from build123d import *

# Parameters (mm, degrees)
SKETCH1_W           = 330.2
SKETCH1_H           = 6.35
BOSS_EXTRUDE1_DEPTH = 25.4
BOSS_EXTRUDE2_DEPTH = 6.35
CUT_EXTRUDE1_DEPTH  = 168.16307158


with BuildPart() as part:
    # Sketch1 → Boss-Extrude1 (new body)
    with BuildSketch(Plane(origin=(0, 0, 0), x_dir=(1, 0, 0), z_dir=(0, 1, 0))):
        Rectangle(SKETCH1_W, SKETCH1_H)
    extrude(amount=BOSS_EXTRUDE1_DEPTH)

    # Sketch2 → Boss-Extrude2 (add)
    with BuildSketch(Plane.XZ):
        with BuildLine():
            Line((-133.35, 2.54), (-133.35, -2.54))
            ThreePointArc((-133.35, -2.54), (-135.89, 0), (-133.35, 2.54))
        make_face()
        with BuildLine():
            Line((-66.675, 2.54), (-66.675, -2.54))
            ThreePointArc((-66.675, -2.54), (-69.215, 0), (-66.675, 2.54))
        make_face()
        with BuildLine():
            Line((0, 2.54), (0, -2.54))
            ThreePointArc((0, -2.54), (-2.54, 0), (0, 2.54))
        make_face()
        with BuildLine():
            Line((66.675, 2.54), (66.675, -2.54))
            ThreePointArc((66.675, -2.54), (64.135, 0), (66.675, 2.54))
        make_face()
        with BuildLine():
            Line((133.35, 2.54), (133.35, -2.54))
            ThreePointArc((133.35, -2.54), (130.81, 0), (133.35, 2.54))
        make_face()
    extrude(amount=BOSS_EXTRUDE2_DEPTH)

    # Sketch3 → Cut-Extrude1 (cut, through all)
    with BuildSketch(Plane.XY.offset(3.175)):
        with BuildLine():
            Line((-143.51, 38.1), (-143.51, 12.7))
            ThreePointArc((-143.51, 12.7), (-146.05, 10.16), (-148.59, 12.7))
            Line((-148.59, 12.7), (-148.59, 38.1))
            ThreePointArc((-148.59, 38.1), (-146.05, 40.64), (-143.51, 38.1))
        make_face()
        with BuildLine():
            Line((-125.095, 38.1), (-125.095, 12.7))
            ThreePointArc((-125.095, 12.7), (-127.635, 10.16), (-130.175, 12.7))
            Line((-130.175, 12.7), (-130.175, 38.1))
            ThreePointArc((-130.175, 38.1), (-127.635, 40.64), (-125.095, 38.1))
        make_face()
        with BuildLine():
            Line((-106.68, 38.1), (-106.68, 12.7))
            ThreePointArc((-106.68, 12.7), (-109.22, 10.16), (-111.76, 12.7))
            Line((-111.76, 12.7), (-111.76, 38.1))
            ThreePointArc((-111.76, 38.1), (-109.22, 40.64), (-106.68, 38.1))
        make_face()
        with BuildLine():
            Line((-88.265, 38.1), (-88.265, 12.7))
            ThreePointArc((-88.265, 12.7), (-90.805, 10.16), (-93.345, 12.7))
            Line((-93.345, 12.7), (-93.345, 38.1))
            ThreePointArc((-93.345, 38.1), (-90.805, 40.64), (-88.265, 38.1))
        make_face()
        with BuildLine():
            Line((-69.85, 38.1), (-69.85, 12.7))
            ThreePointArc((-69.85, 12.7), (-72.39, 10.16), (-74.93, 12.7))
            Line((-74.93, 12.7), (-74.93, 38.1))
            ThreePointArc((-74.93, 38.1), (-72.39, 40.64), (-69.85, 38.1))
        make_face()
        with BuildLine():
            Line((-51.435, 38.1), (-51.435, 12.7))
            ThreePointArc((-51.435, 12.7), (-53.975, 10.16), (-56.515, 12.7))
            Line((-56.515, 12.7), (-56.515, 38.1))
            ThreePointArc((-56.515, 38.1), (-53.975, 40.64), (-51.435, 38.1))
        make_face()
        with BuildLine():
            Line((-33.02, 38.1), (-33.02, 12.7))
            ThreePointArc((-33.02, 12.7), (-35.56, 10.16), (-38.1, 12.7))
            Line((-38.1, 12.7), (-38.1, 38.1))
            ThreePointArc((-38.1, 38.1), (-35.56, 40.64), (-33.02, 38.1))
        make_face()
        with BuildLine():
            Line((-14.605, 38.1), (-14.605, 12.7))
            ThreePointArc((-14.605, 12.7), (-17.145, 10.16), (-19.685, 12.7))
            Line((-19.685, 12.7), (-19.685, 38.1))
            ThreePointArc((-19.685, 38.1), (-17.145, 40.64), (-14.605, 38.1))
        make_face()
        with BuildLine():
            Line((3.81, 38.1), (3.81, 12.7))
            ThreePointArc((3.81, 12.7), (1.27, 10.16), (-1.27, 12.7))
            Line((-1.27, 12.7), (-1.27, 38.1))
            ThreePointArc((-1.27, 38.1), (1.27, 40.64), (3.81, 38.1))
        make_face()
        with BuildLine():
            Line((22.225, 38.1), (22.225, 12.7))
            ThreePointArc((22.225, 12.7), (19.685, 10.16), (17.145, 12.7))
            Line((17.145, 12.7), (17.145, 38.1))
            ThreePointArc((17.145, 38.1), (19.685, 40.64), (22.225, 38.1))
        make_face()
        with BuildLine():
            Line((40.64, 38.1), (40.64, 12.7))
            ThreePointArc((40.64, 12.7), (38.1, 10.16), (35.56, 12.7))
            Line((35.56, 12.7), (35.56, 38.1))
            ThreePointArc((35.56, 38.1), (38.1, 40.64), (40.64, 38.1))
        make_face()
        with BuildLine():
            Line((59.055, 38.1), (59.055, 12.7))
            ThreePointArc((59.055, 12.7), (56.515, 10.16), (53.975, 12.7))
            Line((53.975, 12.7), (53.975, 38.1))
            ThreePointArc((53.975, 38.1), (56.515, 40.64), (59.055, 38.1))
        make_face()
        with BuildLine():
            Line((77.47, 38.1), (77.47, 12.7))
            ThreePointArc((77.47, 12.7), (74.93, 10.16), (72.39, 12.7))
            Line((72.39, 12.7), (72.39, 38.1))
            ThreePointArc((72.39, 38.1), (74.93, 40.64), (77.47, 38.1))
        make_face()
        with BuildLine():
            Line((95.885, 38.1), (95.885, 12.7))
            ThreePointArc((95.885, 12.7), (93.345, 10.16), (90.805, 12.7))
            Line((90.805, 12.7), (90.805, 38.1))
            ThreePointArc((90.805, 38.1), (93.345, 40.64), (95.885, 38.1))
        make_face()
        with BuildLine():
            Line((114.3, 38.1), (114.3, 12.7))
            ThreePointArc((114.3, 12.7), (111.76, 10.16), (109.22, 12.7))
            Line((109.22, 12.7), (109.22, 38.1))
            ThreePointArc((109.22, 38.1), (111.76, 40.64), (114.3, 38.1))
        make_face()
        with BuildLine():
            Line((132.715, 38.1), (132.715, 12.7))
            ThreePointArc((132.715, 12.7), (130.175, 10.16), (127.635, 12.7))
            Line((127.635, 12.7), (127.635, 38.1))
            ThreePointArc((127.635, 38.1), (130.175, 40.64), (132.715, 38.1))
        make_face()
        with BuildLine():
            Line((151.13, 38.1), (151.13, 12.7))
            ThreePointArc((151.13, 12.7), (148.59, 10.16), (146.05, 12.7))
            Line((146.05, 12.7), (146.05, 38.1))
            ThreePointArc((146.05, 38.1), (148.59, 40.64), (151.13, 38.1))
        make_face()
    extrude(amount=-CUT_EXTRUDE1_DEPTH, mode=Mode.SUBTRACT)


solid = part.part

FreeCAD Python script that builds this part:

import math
import FreeCAD as App
import Part
import Sketcher

V = App.Vector
Q = App.Units.Quantity

doc = App.newDocument("Part")
params = doc.addObject("Spreadsheet::Sheet", "Params")
for row, (alias, value) in enumerate([
    ("sketch1_width", "13 in"),
    ("sketch1_height", "0.25 in"),
    ("pad1_length", "1 in"),
    ("sketch2_radius", "0.1 in"),
    ("pad2_length", "0.25 in"),
    ("sketch3_radius", "0.1 in"),
    ("sketch3_height", "1 in"),
], start=1):
    params.set(f"A{row}", alias)
    params.set(f"B{row}", "=" + value)
    params.setAlias(f"B{row}", alias)

body = doc.addObject("PartDesign::Body", "Body")

sketch1 = body.newObject("Sketcher::SketchObject", "Sketch")
sketch1.AttachmentSupport = (doc.getObject("XZ_Plane"), [""])
sketch1.MapMode = "FlatFace"
sketch1.addGeometry([
    Part.LineSegment(V(-165, -3, 0), V(-165, 3, 0)),
    Part.LineSegment(V(-165, 3, 0), V(165, 3, 0)),
    Part.LineSegment(V(165, 3, 0), V(165, -3, 0)),
    Part.LineSegment(V(165, -3, 0), V(-165, -3, 0)),
], False)
sketch1.addConstraint([
    Sketcher.Constraint("Coincident", 0, 2, 1, 1),
    Sketcher.Constraint("Coincident", 1, 2, 2, 1),
    Sketcher.Constraint("Coincident", 2, 2, 3, 1),
    Sketcher.Constraint("Coincident", 3, 2, 0, 1),
    Sketcher.Constraint("Vertical", 0),
    Sketcher.Constraint("Horizontal", 1),
    Sketcher.Constraint("Vertical", 2),
    Sketcher.Constraint("Horizontal", 3),
    Sketcher.Constraint("Symmetric", 0, 2, 2, 2, -1, 1),
    Sketcher.Constraint("DistanceX", 1, 1, 1, 2, Q("13 in")),
    Sketcher.Constraint("DistanceY", 0, 1, 0, 2, Q("0.25 in")),
])
sketch1.setExpression("Constraints[9]", "Params.sketch1_width")
sketch1.setExpression("Constraints[10]", "Params.sketch1_height")
pad1 = body.newObject("PartDesign::Pad", "Pad")
pad1.Profile = sketch1
pad1.setExpression("Length", "Params.pad1_length")
pad1.Reversed = True

sketch2 = body.newObject("Sketcher::SketchObject", "Sketch001")
sketch2.AttachmentSupport = (doc.getObject("XZ_Plane"), [""])
sketch2.MapMode = "FlatFace"
sketch2.addGeometry([
    Part.LineSegment(V(-133.3, -2.5, 0), V(-133.3, 2.5, 0)),
    Part.ArcOfCircle(Part.Circle(V(-133.3, 0, 0), V(0, 0, 1), 2.5), math.radians(90), math.radians(270)),
    Part.LineSegment(V(-66.7, -2.5, 0), V(-66.7, 2.5, 0)),
    Part.ArcOfCircle(Part.Circle(V(-66.7, 0, 0), V(0, 0, 1), 2.5), math.radians(90), math.radians(270)),
    Part.LineSegment(V(0, -2.5, 0), V(0, 2.5, 0)),
    Part.ArcOfCircle(Part.Circle(V(0, 0, 0), V(0, 0, 1), 2.5), math.radians(90), math.radians(270)),
    Part.LineSegment(V(66.7, -2.5, 0), V(66.7, 2.5, 0)),
    Part.ArcOfCircle(Part.Circle(V(66.7, 0, 0), V(0, 0, 1), 2.5), math.radians(90), math.radians(270)),
    Part.LineSegment(V(133.3, -2.5, 0), V(133.3, 2.5, 0)),
    Part.ArcOfCircle(Part.Circle(V(133.3, 0, 0), V(0, 0, 1), 2.5), math.radians(90), math.radians(270)),
], False)
sketch2.addConstraint([
    Sketcher.Constraint("Coincident", 0, 1, 1, 2),
    Sketcher.Constraint("Coincident", 1, 1, 0, 2),
    Sketcher.Constraint("Coincident", 2, 1, 3, 2),
    Sketcher.Constraint("Coincident", 3, 1, 2, 2),
    Sketcher.Constraint("Coincident", 4, 1, 5, 2),
    Sketcher.Constraint("Coincident", 5, 1, 4, 2),
    Sketcher.Constraint("Coincident", 6, 1, 7, 2),
    Sketcher.Constraint("Coincident", 7, 1, 6, 2),
    Sketcher.Constraint("Coincident", 8, 1, 9, 2),
    Sketcher.Constraint("Coincident", 9, 1, 8, 2),
    Sketcher.Constraint("Vertical", 0),
    Sketcher.Constraint("Vertical", 2),
    Sketcher.Constraint("Vertical", 4),
    Sketcher.Constraint("Vertical", 6),
    Sketcher.Constraint("Vertical", 8),
    Sketcher.Constraint("Coincident", 5, 3, -1, 1),
    Sketcher.Constraint("Equal", 1, 3),
    Sketcher.Constraint("Equal", 3, 5),
    Sketcher.Constraint("Equal", 5, 7),
    Sketcher.Constraint("Equal", 7, 9),
    Sketcher.Constraint("Symmetric", 3, 3, 7, 3, -1, 1),
    Sketcher.Constraint("Symmetric", 1, 3, 9, 3, -1, 1),
    Sketcher.Constraint("Symmetric", 2, 1, 6, 1, -2),
    Sketcher.Constraint("Symmetric", 0, 1, 8, 1, -2),
    Sketcher.Constraint("PointOnObject", 4, 1, -2),
    Sketcher.Constraint("Vertical", 1, 3, 0, 1),
    Sketcher.Constraint("Vertical", 3, 3, 2, 1),
    Sketcher.Constraint("Radius", 1, Q("0.1 in")),
    Sketcher.Constraint("DistanceX", 1, 3, 9, 3, Q("10.5 in")),
    Sketcher.Constraint("DistanceX", 3, 3, 7, 3, Q("5.25 in")),
])
sketch2.setExpression("Constraints[27]", "Params.sketch2_radius")
pad2 = body.newObject("PartDesign::Pad", "Pad001")
pad2.Profile = sketch2
pad2.setExpression("Length", "Params.pad2_length")

sketch3 = body.newObject("Sketcher::SketchObject", "Sketch002")
sketch3.AttachmentSupport = (doc.getObject("XY_Plane"), [""])
sketch3.MapMode = "FlatFace"
sketch3.AttachmentOffset = App.Placement(V(0, 0, 0.125 * 25.4), App.Rotation())
sketch3.addGeometry([
    Part.LineSegment(V(-143.5, 12.7, 0), V(-143.5, 38.1, 0)),
    Part.ArcOfCircle(Part.Circle(V(-146.1, 38.1, 0), V(0, 0, 1), 2.5), math.radians(0), math.radians(180)),
    Part.LineSegment(V(-148.6, 38.1, 0), V(-148.6, 12.7, 0)),
    Part.ArcOfCircle(Part.Circle(V(-146.1, 12.7, 0), V(0, 0, 1), 2.5), math.radians(180), math.radians(360)),
    Part.LineSegment(V(-125.1, 12.7, 0), V(-125.1, 38.1, 0)),
    Part.ArcOfCircle(Part.Circle(V(-127.6, 38.1, 0), V(0, 0, 1), 2.5), math.radians(0), math.radians(180)),
    Part.LineSegment(V(-130.2, 38.1, 0), V(-130.2, 12.7, 0)),
    Part.ArcOfCircle(Part.Circle(V(-127.6, 12.7, 0), V(0, 0, 1), 2.5), math.radians(180), math.radians(360)),
    Part.LineSegment(V(-106.7, 12.7, 0), V(-106.7, 38.1, 0)),
    Part.ArcOfCircle(Part.Circle(V(-109.2, 38.1, 0), V(0, 0, 1), 2.5), math.radians(0), math.radians(180)),
    Part.LineSegment(V(-111.8, 38.1, 0), V(-111.8, 12.7, 0)),
    Part.ArcOfCircle(Part.Circle(V(-109.2, 12.7, 0), V(0, 0, 1), 2.5), math.radians(180), math.radians(360)),
    Part.LineSegment(V(-88.3, 12.7, 0), V(-88.3, 38.1, 0)),
    Part.ArcOfCircle(Part.Circle(V(-90.8, 38.1, 0), V(0, 0, 1), 2.5), math.radians(0), math.radians(180)),
    Part.LineSegment(V(-93.3, 38.1, 0), V(-93.3, 12.7, 0)),
    Part.ArcOfCircle(Part.Circle(V(-90.8, 12.7, 0), V(0, 0, 1), 2.5), math.radians(180), math.radians(360)),
    Part.LineSegment(V(-69.8, 12.7, 0), V(-69.8, 38.1, 0)),
    Part.ArcOfCircle(Part.Circle(V(-72.4, 38.1, 0), V(0, 0, 1), 2.5), math.radians(0), math.radians(180)),
    Part.LineSegment(V(-74.9, 38.1, 0), V(-74.9, 12.7, 0)),
    Part.ArcOfCircle(Part.Circle(V(-72.4, 12.7, 0), V(0, 0, 1), 2.5), math.radians(180), math.radians(360)),
    Part.LineSegment(V(-51.4, 12.7, 0), V(-51.4, 38.1, 0)),
    Part.ArcOfCircle(Part.Circle(V(-54, 38.1, 0), V(0, 0, 1), 2.5), math.radians(0), math.radians(180)),
    Part.LineSegment(V(-56.5, 38.1, 0), V(-56.5, 12.7, 0)),
    Part.ArcOfCircle(Part.Circle(V(-54, 12.7, 0), V(0, 0, 1), 2.5), math.radians(180), math.radians(360)),
    Part.LineSegment(V(-33, 12.7, 0), V(-33, 38.1, 0)),
    Part.ArcOfCircle(Part.Circle(V(-35.6, 38.1, 0), V(0, 0, 1), 2.5), math.radians(0), math.radians(180)),
    Part.LineSegment(V(-38.1, 38.1, 0), V(-38.1, 12.7, 0)),
    Part.ArcOfCircle(Part.Circle(V(-35.6, 12.7, 0), V(0, 0, 1), 2.5), math.radians(180), math.radians(360)),
    Part.LineSegment(V(-14.6, 12.7, 0), V(-14.6, 38.1, 0)),
    Part.ArcOfCircle(Part.Circle(V(-17.1, 38.1, 0), V(0, 0, 1), 2.5), math.radians(0), math.radians(180)),
    Part.LineSegment(V(-19.7, 38.1, 0), V(-19.7, 12.7, 0)),
    Part.ArcOfCircle(Part.Circle(V(-17.1, 12.7, 0), V(0, 0, 1), 2.5), math.radians(180), math.radians(360)),
    Part.LineSegment(V(3.8, 12.7, 0), V(3.8, 38.1, 0)),
    Part.ArcOfCircle(Part.Circle(V(1.3, 38.1, 0), V(0, 0, 1), 2.5), math.radians(0), math.radians(180)),
    Part.LineSegment(V(-1.3, 38.1, 0), V(-1.3, 12.7, 0)),
    Part.ArcOfCircle(Part.Circle(V(1.3, 12.7, 0), V(0, 0, 1), 2.5), math.radians(180), math.radians(360)),
    Part.LineSegment(V(22.2, 12.7, 0), V(22.2, 38.1, 0)),
    Part.ArcOfCircle(Part.Circle(V(19.7, 38.1, 0), V(0, 0, 1), 2.5), math.radians(0), math.radians(180)),
    Part.LineSegment(V(17.1, 38.1, 0), V(17.1, 12.7, 0)),
    Part.ArcOfCircle(Part.Circle(V(19.7, 12.7, 0), V(0, 0, 1), 2.5), math.radians(180), math.radians(360)),
    Part.LineSegment(V(40.6, 12.7, 0), V(40.6, 38.1, 0)),
    Part.ArcOfCircle(Part.Circle(V(38.1, 38.1, 0), V(0, 0, 1), 2.5), math.radians(0), math.radians(180)),
    Part.LineSegment(V(35.6, 38.1, 0), V(35.6, 12.7, 0)),
    Part.ArcOfCircle(Part.Circle(V(38.1, 12.7, 0), V(0, 0, 1), 2.5), math.radians(180), math.radians(360)),
    Part.LineSegment(V(59.1, 12.7, 0), V(59.1, 38.1, 0)),
    Part.ArcOfCircle(Part.Circle(V(56.5, 38.1, 0), V(0, 0, 1), 2.5), math.radians(0), math.radians(180)),
    Part.LineSegment(V(54, 38.1, 0), V(54, 12.7, 0)),
    Part.ArcOfCircle(Part.Circle(V(56.5, 12.7, 0), V(0, 0, 1), 2.5), math.radians(180), math.radians(360)),
    Part.LineSegment(V(77.5, 12.7, 0), V(77.5, 38.1, 0)),
    Part.ArcOfCircle(Part.Circle(V(74.9, 38.1, 0), V(0, 0, 1), 2.5), math.radians(0), math.radians(180)),
    Part.LineSegment(V(72.4, 38.1, 0), V(72.4, 12.7, 0)),
    Part.ArcOfCircle(Part.Circle(V(74.9, 12.7, 0), V(0, 0, 1), 2.5), math.radians(180), math.radians(360)),
    Part.LineSegment(V(95.9, 12.7, 0), V(95.9, 38.1, 0)),
    Part.ArcOfCircle(Part.Circle(V(93.3, 38.1, 0), V(0, 0, 1), 2.5), math.radians(0), math.radians(180)),
    Part.LineSegment(V(90.8, 38.1, 0), V(90.8, 12.7, 0)),
    Part.ArcOfCircle(Part.Circle(V(93.3, 12.7, 0), V(0, 0, 1), 2.5), math.radians(180), math.radians(360)),
    Part.LineSegment(V(114.3, 12.7, 0), V(114.3, 38.1, 0)),
    Part.ArcOfCircle(Part.Circle(V(111.8, 38.1, 0), V(0, 0, 1), 2.5), math.radians(0), math.radians(180)),
    Part.LineSegment(V(109.2, 38.1, 0), V(109.2, 12.7, 0)),
    Part.ArcOfCircle(Part.Circle(V(111.8, 12.7, 0), V(0, 0, 1), 2.5), math.radians(180), math.radians(360)),
    Part.LineSegment(V(132.7, 12.7, 0), V(132.7, 38.1, 0)),
    Part.ArcOfCircle(Part.Circle(V(130.2, 38.1, 0), V(0, 0, 1), 2.5), math.radians(0), math.radians(180)),
    Part.LineSegment(V(127.6, 38.1, 0), V(127.6, 12.7, 0)),
    Part.ArcOfCircle(Part.Circle(V(130.2, 12.7, 0), V(0, 0, 1), 2.5), math.radians(180), math.radians(360)),
    Part.LineSegment(V(151.1, 12.7, 0), V(151.1, 38.1, 0)),
    Part.ArcOfCircle(Part.Circle(V(148.6, 38.1, 0), V(0, 0, 1), 2.5), math.radians(0), math.radians(180)),
    Part.LineSegment(V(146.1, 38.1, 0), V(146.1, 12.7, 0)),
    Part.ArcOfCircle(Part.Circle(V(148.6, 12.7, 0), V(0, 0, 1), 2.5), math.radians(180), math.radians(360)),
], False)
sketch3.addConstraint([
    Sketcher.Constraint("Tangent", 0, 2, 1, 1),
    Sketcher.Constraint("Tangent", 1, 2, 2, 1),
    Sketcher.Constraint("Tangent", 2, 2, 3, 1),
    Sketcher.Constraint("Tangent", 3, 2, 0, 1),
    Sketcher.Constraint("Tangent", 4, 2, 5, 1),
    Sketcher.Constraint("Tangent", 5, 2, 6, 1),
    Sketcher.Constraint("Tangent", 6, 2, 7, 1),
    Sketcher.Constraint("Tangent", 7, 2, 4, 1),
    Sketcher.Constraint("Tangent", 8, 2, 9, 1),
    Sketcher.Constraint("Tangent", 9, 2, 10, 1),
    Sketcher.Constraint("Tangent", 10, 2, 11, 1),
    Sketcher.Constraint("Tangent", 11, 2, 8, 1),
    Sketcher.Constraint("Tangent", 12, 2, 13, 1),
    Sketcher.Constraint("Tangent", 13, 2, 14, 1),
    Sketcher.Constraint("Tangent", 14, 2, 15, 1),
    Sketcher.Constraint("Tangent", 15, 2, 12, 1),
    Sketcher.Constraint("Tangent", 16, 2, 17, 1),
    Sketcher.Constraint("Tangent", 17, 2, 18, 1),
    Sketcher.Constraint("Tangent", 18, 2, 19, 1),
    Sketcher.Constraint("Tangent", 19, 2, 16, 1),
    Sketcher.Constraint("Tangent", 20, 2, 21, 1),
    Sketcher.Constraint("Tangent", 21, 2, 22, 1),
    Sketcher.Constraint("Tangent", 22, 2, 23, 1),
    Sketcher.Constraint("Tangent", 23, 2, 20, 1),
    Sketcher.Constraint("Tangent", 24, 2, 25, 1),
    Sketcher.Constraint("Tangent", 25, 2, 26, 1),
    Sketcher.Constraint("Tangent", 26, 2, 27, 1),
    Sketcher.Constraint("Tangent", 27, 2, 24, 1),
    Sketcher.Constraint("Tangent", 28, 2, 29, 1),
    Sketcher.Constraint("Tangent", 29, 2, 30, 1),
    Sketcher.Constraint("Tangent", 30, 2, 31, 1),
    Sketcher.Constraint("Tangent", 31, 2, 28, 1),
    Sketcher.Constraint("Tangent", 32, 2, 33, 1),
    Sketcher.Constraint("Tangent", 33, 2, 34, 1),
    Sketcher.Constraint("Tangent", 34, 2, 35, 1),
    Sketcher.Constraint("Tangent", 35, 2, 32, 1),
    Sketcher.Constraint("Tangent", 36, 2, 37, 1),
    Sketcher.Constraint("Tangent", 37, 2, 38, 1),
    Sketcher.Constraint("Tangent", 38, 2, 39, 1),
    Sketcher.Constraint("Tangent", 39, 2, 36, 1),
    Sketcher.Constraint("Tangent", 40, 2, 41, 1),
    Sketcher.Constraint("Tangent", 41, 2, 42, 1),
    Sketcher.Constraint("Tangent", 42, 2, 43, 1),
    Sketcher.Constraint("Tangent", 43, 2, 40, 1),
    Sketcher.Constraint("Tangent", 44, 2, 45, 1),
    Sketcher.Constraint("Tangent", 45, 2, 46, 1),
    Sketcher.Constraint("Tangent", 46, 2, 47, 1),
    Sketcher.Constraint("Tangent", 47, 2, 44, 1),
    Sketcher.Constraint("Tangent", 48, 2, 49, 1),
    Sketcher.Constraint("Tangent", 49, 2, 50, 1),
    Sketcher.Constraint("Tangent", 50, 2, 51, 1),
    Sketcher.Constraint("Tangent", 51, 2, 48, 1),
    Sketcher.Constraint("Tangent", 52, 2, 53, 1),
    Sketcher.Constraint("Tangent", 53, 2, 54, 1),
    Sketcher.Constraint("Tangent", 54, 2, 55, 1),
    Sketcher.Constraint("Tangent", 55, 2, 52, 1),
    Sketcher.Constraint("Tangent", 56, 2, 57, 1),
    Sketcher.Constraint("Tangent", 57, 2, 58, 1),
    Sketcher.Constraint("Tangent", 58, 2, 59, 1),
    Sketcher.Constraint("Tangent", 59, 2, 56, 1),
    Sketcher.Constraint("Tangent", 60, 2, 61, 1),
    Sketcher.Constraint("Tangent", 61, 2, 62, 1),
    Sketcher.Constraint("Tangent", 62, 2, 63, 1),
    Sketcher.Constraint("Tangent", 63, 2, 60, 1),
    Sketcher.Constraint("Tangent", 64, 2, 65, 1),
    Sketcher.Constraint("Tangent", 65, 2, 66, 1),
    Sketcher.Constraint("Tangent", 66, 2, 67, 1),
    Sketcher.Constraint("Tangent", 67, 2, 64, 1),
    Sketcher.Constraint("Vertical", 0),
    Sketcher.Constraint("Vertical", 2),
    Sketcher.Constraint("Vertical", 4),
    Sketcher.Constraint("Vertical", 6),
    Sketcher.Constraint("Vertical", 8),
    Sketcher.Constraint("Vertical", 10),
    Sketcher.Constraint("Vertical", 12),
    Sketcher.Constraint("Vertical", 14),
    Sketcher.Constraint("Vertical", 16),
    Sketcher.Constraint("Vertical", 18),
    Sketcher.Constraint("Vertical", 20),
    Sketcher.Constraint("Vertical", 22),
    Sketcher.Constraint("Vertical", 24),
    Sketcher.Constraint("Vertical", 26),
    Sketcher.Constraint("Vertical", 28),
    Sketcher.Constraint("Vertical", 30),
    Sketcher.Constraint("Vertical", 32),
    Sketcher.Constraint("Vertical", 34),
    Sketcher.Constraint("Vertical", 36),
    Sketcher.Constraint("Vertical", 38),
    Sketcher.Constraint("Vertical", 40),
    Sketcher.Constraint("Vertical", 42),
    Sketcher.Constraint("Vertical", 44),
    Sketcher.Constraint("Vertical", 46),
    Sketcher.Constraint("Vertical", 48),
    Sketcher.Constraint("Vertical", 50),
    Sketcher.Constraint("Vertical", 52),
    Sketcher.Constraint("Vertical", 54),
    Sketcher.Constraint("Vertical", 56),
    Sketcher.Constraint("Vertical", 58),
    Sketcher.Constraint("Vertical", 60),
    Sketcher.Constraint("Vertical", 62),
    Sketcher.Constraint("Vertical", 64),
    Sketcher.Constraint("Vertical", 66),
    Sketcher.Constraint("Equal", 3, 5),
    Sketcher.Constraint("Equal", 7, 9),
    Sketcher.Constraint("Equal", 11, 13),
    Sketcher.Constraint("Equal", 15, 17),
    Sketcher.Constraint("Equal", 19, 21),
    Sketcher.Constraint("Equal", 23, 25),
    Sketcher.Constraint("Equal", 27, 29),
    Sketcher.Constraint("Equal", 31, 33),
    Sketcher.Constraint("Equal", 35, 37),
    Sketcher.Constraint("Equal", 39, 41),
    Sketcher.Constraint("Equal", 43, 45),
    Sketcher.Constraint("Equal", 47, 49),
    Sketcher.Constraint("Equal", 51, 53),
    Sketcher.Constraint("Equal", 55, 57),
    Sketcher.Constraint("Equal", 59, 61),
    Sketcher.Constraint("Equal", 63, 65),
    Sketcher.Constraint("Horizontal", 1, 3, 5, 3),
    Sketcher.Constraint("Horizontal", 3, 3, 7, 3),
    Sketcher.Constraint("Horizontal", 5, 3, 9, 3),
    Sketcher.Constraint("Horizontal", 7, 3, 11, 3),
    Sketcher.Constraint("Horizontal", 9, 3, 13, 3),
    Sketcher.Constraint("Horizontal", 11, 3, 15, 3),
    Sketcher.Constraint("Horizontal", 13, 3, 17, 3),
    Sketcher.Constraint("Horizontal", 15, 3, 19, 3),
    Sketcher.Constraint("Horizontal", 17, 3, 21, 3),
    Sketcher.Constraint("Horizontal", 19, 3, 23, 3),
    Sketcher.Constraint("Horizontal", 21, 3, 25, 3),
    Sketcher.Constraint("Horizontal", 23, 3, 27, 3),
    Sketcher.Constraint("Horizontal", 25, 3, 29, 3),
    Sketcher.Constraint("Horizontal", 27, 3, 31, 3),
    Sketcher.Constraint("Horizontal", 29, 3, 33, 3),
    Sketcher.Constraint("Horizontal", 31, 3, 35, 3),
    Sketcher.Constraint("Horizontal", 33, 3, 37, 3),
    Sketcher.Constraint("Horizontal", 35, 3, 39, 3),
    Sketcher.Constraint("Horizontal", 37, 3, 41, 3),
    Sketcher.Constraint("Horizontal", 39, 3, 43, 3),
    Sketcher.Constraint("Horizontal", 41, 3, 45, 3),
    Sketcher.Constraint("Horizontal", 43, 3, 47, 3),
    Sketcher.Constraint("Horizontal", 45, 3, 49, 3),
    Sketcher.Constraint("Horizontal", 47, 3, 51, 3),
    Sketcher.Constraint("Horizontal", 49, 3, 53, 3),
    Sketcher.Constraint("Horizontal", 51, 3, 55, 3),
    Sketcher.Constraint("Horizontal", 53, 3, 57, 3),
    Sketcher.Constraint("Horizontal", 55, 3, 59, 3),
    Sketcher.Constraint("Horizontal", 57, 3, 61, 3),
    Sketcher.Constraint("Horizontal", 59, 3, 63, 3),
    Sketcher.Constraint("Horizontal", 61, 3, 65, 3),
    Sketcher.Constraint("Horizontal", 63, 3, 67, 3),
    Sketcher.Constraint("Radius", 1, Q("0.1 in")),
    Sketcher.Constraint("DistanceY", 0, 1, 0, 2, Q("1 in")),
    Sketcher.Constraint("DistanceY", -1, 1, 1, 3, Q("1.5 in")),
    Sketcher.Constraint("DistanceX", 9, 3, -1, 1, Q("4.3 in")),
    Sketcher.Constraint("DistanceX", 25, 3, -1, 1, Q("1.4 in")),
    Sketcher.Constraint("DistanceX", -1, 1, 41, 3, Q("1.5 in")),
    Sketcher.Constraint("DistanceX", -1, 1, 57, 3, Q("4.4 in")),
    Sketcher.Constraint("DistanceX", 1, 3, -1, 1, Q("5.75 in")),
    Sketcher.Constraint("DistanceX", 17, 3, -1, 1, Q("2.85 in")),
    Sketcher.Constraint("DistanceX", -1, 1, 33, 3, Q("0.05 in")),
    Sketcher.Constraint("DistanceX", -1, 1, 49, 3, Q("2.95 in")),
    Sketcher.Constraint("DistanceX", -1, 1, 65, 3, Q("5.85 in")),
    Sketcher.Constraint("DistanceX", 5, 3, -1, 1, Q("5.025 in")),
    Sketcher.Constraint("DistanceX", 13, 3, -1, 1, Q("3.575 in")),
    Sketcher.Constraint("DistanceX", 21, 3, -1, 1, Q("2.125 in")),
    Sketcher.Constraint("DistanceX", 29, 3, -1, 1, Q("0.675 in")),
    Sketcher.Constraint("DistanceX", -1, 1, 37, 3, Q("0.775 in")),
    Sketcher.Constraint("DistanceX", -1, 1, 45, 3, Q("2.225 in")),
    Sketcher.Constraint("DistanceX", -1, 1, 53, 3, Q("3.675 in")),
    Sketcher.Constraint("DistanceX", -1, 1, 61, 3, Q("5.125 in")),
])
sketch3.setExpression("Constraints[150]", "Params.sketch3_radius")
sketch3.setExpression("Constraints[151]", "Params.sketch3_height")
pocket1 = body.newObject("PartDesign::Pocket", "Pocket")
pocket1.Profile = sketch3
pocket1.Type = "ThroughAll"

doc.recompute()
